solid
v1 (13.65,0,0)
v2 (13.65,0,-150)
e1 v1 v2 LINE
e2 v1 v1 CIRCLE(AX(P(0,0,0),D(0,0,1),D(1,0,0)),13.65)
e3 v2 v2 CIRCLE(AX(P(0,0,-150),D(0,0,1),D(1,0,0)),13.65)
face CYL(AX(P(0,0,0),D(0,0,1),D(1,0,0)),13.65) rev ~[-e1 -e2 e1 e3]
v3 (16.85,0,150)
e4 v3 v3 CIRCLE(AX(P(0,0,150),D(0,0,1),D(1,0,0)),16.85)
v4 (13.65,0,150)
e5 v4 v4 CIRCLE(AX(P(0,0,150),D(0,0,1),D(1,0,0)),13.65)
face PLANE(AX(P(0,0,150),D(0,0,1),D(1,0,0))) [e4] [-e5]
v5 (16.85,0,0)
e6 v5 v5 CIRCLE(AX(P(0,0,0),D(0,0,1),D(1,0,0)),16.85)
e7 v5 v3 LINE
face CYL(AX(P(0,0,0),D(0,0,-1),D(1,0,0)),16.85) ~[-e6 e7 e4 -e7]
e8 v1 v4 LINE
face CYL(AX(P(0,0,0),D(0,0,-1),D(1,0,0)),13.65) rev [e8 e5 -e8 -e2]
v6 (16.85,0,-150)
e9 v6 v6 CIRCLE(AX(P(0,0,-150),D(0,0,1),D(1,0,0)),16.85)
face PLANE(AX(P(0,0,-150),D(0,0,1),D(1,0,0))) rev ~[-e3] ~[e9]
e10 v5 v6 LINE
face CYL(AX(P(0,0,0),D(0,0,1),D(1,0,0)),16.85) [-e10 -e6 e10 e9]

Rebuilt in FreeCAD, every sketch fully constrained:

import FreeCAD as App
import Part
import Sketcher
Q = App.Units.Quantity

doc = App.newDocument("Part")
body = doc.addObject("PartDesign::Body", "Body")

# Sketch on XY plane
sketch1 = body.newObject("Sketcher::SketchObject", "Sketch")
sketch1.AttachmentSupport = (doc.getObject("XY_Plane"), [""])
sketch1.MapMode = "FlatFace"
sketch1.addGeometry([
    Part.Circle(App.Vector(0, 0, 0), App.Vector(0, 0, 1), 17),
    Part.Circle(App.Vector(0, 0, 0), App.Vector(0, 0, 1), 14),
], False)
sketch1.addConstraint([
    Sketcher.Constraint("Coincident", 0, 3, -1, 1),
    Sketcher.Constraint("Coincident", 1, 3, -1, 1),
    Sketcher.Constraint("Diameter", 0, Q("33.7 mm")),
    Sketcher.Constraint("Diameter", 1, Q("27.3 mm")),
])
pad1 = body.newObject("PartDesign::Pad", "Pad")
pad1.Profile = sketch1
pad1.Length = 300
pad1.Midplane = True

doc.recompute()
